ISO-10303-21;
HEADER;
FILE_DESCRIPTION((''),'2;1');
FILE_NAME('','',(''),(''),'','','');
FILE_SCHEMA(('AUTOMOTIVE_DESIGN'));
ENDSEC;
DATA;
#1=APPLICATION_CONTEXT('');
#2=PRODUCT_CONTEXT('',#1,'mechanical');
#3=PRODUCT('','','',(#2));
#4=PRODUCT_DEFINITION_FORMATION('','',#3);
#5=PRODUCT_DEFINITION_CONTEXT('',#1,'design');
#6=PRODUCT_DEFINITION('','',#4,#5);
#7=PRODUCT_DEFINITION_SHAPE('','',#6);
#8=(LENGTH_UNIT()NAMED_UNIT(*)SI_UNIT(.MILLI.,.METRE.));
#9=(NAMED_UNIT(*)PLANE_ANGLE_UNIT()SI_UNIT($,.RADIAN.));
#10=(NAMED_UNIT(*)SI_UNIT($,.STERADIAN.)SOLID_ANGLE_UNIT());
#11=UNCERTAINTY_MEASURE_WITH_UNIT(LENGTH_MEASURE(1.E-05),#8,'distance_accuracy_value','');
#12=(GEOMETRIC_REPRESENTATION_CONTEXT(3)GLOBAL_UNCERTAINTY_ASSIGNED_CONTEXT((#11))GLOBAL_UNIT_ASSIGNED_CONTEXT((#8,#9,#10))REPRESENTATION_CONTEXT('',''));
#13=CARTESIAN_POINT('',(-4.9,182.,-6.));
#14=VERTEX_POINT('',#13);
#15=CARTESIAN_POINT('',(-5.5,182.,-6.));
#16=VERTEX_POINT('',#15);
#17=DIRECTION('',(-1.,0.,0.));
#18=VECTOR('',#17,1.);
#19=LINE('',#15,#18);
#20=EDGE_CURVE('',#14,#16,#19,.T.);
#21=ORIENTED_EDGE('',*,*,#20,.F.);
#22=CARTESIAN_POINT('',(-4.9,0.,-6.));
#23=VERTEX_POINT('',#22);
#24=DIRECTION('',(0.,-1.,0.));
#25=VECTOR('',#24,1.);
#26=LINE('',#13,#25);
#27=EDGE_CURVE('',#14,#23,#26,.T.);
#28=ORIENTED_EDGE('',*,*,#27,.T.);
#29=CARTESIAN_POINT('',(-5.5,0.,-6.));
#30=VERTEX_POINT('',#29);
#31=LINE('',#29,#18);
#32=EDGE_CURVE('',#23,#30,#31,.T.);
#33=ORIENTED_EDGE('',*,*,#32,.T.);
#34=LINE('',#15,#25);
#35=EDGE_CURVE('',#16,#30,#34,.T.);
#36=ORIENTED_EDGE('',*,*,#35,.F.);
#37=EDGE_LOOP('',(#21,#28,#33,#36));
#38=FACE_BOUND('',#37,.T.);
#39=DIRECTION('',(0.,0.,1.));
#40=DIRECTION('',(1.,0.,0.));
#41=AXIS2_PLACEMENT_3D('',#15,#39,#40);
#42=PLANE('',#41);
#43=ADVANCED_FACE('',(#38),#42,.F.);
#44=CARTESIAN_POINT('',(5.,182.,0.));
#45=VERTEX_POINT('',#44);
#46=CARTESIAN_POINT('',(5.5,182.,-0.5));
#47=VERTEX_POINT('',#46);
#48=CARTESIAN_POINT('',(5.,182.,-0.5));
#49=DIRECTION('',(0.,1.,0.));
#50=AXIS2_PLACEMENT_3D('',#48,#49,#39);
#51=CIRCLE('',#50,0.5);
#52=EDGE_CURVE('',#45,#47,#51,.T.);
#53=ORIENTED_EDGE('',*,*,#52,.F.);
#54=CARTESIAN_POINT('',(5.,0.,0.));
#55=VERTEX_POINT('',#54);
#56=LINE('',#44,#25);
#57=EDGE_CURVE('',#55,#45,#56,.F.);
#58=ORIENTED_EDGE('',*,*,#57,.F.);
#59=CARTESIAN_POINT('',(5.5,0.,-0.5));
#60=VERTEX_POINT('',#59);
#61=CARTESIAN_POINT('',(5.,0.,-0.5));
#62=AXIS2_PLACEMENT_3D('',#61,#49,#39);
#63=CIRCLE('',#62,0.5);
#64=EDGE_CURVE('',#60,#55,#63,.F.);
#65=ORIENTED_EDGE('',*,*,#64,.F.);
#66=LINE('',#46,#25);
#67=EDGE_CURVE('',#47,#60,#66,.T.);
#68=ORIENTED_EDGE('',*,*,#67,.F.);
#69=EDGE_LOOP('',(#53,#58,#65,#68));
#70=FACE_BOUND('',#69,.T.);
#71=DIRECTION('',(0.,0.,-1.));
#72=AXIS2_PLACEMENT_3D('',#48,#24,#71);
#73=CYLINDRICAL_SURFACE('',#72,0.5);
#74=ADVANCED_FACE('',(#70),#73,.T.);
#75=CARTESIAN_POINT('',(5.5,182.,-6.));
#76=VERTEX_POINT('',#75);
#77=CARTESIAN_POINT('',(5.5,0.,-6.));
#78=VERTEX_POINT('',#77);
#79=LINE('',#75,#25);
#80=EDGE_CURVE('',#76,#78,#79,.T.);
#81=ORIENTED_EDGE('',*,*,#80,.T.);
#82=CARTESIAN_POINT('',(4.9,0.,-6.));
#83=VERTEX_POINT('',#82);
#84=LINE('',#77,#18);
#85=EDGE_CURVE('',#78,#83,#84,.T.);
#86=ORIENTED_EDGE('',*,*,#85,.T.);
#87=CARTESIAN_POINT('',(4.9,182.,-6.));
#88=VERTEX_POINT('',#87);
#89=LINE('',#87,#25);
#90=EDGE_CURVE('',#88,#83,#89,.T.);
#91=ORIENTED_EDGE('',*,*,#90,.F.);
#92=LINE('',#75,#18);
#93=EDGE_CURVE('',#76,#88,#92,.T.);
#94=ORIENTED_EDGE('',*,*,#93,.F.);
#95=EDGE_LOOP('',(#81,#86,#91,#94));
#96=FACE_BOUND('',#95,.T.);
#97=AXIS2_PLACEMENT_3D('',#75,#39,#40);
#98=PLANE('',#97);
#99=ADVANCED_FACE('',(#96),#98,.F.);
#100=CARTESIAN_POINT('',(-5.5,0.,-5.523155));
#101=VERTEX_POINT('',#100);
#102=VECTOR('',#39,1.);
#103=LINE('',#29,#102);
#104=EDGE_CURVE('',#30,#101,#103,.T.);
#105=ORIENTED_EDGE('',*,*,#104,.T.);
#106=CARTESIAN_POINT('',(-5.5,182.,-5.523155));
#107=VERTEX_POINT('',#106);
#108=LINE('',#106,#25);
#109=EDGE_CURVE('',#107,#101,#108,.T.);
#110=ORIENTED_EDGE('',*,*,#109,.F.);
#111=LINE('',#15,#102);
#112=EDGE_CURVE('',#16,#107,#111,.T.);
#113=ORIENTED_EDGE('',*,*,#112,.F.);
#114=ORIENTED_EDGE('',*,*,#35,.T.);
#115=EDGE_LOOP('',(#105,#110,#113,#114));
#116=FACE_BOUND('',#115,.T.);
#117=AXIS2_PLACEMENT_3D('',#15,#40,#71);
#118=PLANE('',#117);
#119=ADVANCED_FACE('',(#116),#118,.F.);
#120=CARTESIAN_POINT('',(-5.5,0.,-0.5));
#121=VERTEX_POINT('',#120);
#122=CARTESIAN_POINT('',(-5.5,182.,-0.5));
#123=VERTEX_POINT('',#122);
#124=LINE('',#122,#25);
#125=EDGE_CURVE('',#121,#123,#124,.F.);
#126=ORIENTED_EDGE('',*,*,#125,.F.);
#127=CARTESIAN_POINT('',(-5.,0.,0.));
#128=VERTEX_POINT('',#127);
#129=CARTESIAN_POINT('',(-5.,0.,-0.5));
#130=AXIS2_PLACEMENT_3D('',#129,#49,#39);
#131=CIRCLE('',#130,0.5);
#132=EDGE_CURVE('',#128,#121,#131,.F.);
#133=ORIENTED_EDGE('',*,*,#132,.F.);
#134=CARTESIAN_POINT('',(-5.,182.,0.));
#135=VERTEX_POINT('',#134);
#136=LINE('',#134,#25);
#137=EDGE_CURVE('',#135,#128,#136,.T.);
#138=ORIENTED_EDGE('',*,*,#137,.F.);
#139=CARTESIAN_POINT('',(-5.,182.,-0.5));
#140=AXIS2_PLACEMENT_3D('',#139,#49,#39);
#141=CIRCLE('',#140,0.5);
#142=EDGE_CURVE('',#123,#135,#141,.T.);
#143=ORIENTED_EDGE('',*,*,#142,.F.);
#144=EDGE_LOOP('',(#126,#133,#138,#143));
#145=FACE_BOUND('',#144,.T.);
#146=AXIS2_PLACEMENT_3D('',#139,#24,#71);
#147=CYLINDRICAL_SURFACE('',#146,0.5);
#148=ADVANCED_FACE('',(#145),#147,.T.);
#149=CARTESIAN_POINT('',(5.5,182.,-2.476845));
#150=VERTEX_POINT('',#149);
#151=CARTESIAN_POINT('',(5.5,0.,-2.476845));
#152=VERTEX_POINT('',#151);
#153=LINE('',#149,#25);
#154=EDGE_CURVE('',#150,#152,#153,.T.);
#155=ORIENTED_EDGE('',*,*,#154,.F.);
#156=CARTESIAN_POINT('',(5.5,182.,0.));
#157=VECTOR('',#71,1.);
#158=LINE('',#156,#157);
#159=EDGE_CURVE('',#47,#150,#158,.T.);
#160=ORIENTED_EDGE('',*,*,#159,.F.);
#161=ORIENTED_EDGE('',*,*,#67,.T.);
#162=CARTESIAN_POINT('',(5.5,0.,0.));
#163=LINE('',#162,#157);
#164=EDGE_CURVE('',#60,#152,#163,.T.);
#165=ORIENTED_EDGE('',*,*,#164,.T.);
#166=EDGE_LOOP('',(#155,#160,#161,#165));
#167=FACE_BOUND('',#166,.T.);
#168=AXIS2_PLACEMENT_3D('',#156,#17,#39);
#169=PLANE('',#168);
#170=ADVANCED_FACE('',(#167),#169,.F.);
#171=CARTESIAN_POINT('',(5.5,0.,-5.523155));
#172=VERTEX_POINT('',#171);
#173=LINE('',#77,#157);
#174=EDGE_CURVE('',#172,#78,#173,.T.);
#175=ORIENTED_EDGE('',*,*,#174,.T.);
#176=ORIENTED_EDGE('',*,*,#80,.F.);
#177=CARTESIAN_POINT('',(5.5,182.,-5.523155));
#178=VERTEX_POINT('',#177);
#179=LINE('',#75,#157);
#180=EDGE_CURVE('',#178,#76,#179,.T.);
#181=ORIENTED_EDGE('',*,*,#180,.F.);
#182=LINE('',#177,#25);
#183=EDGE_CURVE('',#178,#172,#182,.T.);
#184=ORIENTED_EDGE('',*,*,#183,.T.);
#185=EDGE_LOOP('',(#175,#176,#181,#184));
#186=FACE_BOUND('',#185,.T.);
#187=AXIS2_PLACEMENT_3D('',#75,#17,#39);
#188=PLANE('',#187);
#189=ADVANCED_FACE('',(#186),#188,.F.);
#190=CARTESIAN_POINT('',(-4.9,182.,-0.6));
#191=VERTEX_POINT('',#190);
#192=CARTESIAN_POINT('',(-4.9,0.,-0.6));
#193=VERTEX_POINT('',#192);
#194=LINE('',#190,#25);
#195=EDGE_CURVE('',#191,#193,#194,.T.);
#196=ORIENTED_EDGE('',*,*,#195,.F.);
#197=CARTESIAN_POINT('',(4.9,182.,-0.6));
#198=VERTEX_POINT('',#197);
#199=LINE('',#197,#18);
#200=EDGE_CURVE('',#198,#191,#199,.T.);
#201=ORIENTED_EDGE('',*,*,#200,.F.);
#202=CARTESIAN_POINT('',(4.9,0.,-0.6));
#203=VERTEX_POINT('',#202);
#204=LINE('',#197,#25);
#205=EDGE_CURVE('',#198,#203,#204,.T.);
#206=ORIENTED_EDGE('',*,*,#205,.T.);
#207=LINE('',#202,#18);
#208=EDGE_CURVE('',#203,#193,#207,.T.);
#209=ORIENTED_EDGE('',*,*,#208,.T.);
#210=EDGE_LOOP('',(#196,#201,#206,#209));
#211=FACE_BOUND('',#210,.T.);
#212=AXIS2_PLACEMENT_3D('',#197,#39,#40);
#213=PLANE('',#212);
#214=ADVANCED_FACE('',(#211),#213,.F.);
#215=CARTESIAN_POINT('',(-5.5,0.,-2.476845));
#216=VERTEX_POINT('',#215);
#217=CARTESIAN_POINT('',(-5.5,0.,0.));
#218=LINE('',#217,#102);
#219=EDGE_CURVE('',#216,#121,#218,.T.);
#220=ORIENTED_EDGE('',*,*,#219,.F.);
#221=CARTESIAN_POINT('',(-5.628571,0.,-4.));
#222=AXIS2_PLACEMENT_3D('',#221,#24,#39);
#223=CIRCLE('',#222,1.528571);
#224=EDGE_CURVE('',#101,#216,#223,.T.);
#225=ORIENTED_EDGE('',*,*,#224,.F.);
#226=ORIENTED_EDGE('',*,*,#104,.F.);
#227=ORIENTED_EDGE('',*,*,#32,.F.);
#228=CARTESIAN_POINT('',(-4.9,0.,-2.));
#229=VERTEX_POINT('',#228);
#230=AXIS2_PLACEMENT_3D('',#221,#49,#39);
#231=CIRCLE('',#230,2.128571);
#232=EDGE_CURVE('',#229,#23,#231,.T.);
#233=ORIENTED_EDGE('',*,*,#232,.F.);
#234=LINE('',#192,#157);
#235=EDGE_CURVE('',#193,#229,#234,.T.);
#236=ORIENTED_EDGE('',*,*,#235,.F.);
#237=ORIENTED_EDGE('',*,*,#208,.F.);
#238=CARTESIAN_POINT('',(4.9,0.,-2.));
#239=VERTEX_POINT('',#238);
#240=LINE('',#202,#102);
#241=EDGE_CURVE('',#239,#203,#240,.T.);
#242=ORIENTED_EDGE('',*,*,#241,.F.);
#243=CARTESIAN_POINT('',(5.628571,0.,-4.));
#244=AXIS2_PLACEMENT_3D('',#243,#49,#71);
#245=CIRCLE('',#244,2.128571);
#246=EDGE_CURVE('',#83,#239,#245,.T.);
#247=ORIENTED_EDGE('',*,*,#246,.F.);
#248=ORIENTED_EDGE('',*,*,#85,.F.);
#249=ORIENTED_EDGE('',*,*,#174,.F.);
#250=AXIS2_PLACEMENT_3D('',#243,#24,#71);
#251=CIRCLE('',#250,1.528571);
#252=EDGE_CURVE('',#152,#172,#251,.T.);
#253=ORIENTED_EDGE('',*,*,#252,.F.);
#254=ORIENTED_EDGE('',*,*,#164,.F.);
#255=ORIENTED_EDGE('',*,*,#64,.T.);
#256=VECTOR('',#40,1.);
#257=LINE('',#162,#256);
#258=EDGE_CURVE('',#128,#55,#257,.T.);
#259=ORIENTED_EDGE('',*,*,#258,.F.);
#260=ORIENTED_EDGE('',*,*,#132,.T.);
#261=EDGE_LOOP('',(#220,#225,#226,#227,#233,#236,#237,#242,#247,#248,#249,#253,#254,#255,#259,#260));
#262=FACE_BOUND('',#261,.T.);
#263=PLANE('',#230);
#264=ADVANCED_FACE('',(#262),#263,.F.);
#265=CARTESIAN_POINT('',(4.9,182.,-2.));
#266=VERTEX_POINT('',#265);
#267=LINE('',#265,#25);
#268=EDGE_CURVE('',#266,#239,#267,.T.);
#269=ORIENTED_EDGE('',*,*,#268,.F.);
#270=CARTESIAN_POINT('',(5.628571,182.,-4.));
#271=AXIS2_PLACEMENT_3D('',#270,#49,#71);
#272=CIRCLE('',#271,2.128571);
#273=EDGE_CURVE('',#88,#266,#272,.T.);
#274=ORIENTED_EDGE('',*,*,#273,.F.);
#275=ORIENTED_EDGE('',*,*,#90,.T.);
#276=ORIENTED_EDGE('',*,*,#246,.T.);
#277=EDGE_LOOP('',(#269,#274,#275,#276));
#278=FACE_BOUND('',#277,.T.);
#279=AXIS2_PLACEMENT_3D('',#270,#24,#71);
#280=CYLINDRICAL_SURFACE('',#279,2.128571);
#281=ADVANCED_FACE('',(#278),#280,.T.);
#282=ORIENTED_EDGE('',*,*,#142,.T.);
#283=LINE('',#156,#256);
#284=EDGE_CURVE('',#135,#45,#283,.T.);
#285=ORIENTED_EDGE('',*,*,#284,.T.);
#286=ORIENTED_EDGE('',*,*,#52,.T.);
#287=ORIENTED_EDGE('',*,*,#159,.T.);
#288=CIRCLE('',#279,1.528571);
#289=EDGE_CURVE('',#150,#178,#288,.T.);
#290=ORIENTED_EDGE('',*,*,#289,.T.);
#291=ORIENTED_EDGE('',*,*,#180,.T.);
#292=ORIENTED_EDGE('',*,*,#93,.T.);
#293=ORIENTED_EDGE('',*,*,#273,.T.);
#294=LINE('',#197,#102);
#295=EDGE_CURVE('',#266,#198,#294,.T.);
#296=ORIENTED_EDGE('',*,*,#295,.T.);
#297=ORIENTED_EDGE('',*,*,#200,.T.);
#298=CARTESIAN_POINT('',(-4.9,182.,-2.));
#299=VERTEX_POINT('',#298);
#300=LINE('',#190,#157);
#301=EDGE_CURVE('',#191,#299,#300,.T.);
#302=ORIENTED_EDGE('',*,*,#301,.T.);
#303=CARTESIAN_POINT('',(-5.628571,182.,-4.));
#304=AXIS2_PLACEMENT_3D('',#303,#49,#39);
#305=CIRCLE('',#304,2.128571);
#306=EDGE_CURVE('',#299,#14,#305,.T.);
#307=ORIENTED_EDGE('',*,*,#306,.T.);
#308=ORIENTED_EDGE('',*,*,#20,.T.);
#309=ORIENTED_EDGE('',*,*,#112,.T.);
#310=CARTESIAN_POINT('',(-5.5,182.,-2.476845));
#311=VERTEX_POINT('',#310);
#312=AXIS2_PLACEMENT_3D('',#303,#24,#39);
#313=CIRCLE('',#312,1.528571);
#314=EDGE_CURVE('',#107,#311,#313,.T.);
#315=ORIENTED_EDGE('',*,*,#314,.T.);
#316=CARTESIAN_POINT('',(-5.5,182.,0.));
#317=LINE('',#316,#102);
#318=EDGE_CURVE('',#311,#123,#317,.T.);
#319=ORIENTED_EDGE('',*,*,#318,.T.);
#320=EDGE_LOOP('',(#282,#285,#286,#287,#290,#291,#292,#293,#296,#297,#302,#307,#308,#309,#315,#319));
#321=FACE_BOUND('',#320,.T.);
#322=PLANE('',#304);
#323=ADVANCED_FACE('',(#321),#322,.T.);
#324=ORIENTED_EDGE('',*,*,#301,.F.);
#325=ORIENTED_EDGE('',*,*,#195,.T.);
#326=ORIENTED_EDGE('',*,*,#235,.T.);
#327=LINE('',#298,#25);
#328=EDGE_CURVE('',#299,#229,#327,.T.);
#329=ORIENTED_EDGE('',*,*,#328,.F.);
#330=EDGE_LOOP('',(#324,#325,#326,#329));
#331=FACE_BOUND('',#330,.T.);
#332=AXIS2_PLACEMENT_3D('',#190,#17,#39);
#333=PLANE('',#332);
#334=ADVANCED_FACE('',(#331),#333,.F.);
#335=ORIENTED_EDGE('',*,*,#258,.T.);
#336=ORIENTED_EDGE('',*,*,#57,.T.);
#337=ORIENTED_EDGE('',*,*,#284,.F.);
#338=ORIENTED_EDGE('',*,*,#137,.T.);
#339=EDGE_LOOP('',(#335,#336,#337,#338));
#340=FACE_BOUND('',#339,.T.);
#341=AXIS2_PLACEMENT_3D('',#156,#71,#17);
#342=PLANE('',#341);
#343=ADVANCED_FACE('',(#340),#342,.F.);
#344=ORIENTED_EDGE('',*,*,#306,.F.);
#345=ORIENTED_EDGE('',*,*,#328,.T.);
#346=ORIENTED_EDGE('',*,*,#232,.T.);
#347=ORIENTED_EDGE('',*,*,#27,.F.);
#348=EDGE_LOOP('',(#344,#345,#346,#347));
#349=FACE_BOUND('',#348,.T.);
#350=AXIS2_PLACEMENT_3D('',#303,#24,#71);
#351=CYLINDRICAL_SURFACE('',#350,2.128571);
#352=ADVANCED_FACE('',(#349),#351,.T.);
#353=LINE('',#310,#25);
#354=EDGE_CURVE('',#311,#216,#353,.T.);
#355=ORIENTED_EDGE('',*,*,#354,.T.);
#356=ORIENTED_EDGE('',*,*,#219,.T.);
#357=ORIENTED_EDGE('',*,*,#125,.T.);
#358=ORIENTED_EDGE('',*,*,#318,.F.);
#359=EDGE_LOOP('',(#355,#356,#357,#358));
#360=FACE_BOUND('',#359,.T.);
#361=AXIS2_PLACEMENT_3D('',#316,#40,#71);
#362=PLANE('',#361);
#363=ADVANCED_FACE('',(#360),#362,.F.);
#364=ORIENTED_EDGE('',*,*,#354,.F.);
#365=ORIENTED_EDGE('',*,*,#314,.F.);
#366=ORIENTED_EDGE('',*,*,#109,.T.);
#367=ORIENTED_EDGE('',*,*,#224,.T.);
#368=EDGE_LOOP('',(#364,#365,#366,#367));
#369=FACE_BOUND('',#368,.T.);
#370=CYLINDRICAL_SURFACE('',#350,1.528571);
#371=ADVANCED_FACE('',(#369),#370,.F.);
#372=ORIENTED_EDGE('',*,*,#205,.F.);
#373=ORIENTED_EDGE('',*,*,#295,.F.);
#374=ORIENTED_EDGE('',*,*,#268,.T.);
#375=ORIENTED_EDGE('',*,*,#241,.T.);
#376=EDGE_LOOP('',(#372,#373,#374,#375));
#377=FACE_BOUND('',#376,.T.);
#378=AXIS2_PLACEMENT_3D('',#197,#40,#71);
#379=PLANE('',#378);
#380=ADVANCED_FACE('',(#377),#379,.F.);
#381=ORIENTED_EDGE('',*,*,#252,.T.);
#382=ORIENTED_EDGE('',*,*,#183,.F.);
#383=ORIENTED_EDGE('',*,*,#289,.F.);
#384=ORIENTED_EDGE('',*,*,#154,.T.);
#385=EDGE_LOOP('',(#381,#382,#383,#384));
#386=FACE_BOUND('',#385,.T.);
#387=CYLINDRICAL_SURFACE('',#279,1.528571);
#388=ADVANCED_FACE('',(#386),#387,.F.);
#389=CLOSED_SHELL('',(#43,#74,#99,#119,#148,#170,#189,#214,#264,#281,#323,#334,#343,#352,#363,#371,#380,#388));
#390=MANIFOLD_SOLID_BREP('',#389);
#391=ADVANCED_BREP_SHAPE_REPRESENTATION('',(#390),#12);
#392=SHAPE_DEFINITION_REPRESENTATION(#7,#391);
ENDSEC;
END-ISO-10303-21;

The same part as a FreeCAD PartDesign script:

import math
import FreeCAD as App
import Part
import Sketcher
Q = App.Units.Quantity


def edges_at(feature, points):
    """Names of the edges that pass closest to the given points."""
    edges = feature.Shape.Edges
    near = lambda p: min(range(len(edges)), key=lambda i: edges[i].distToShape(Part.Vertex(*p))[0])
    return sorted({f"Edge{near(p) + 1}" for p in points})

doc = App.newDocument("Part")
params = doc.addObject("Spreadsheet::Sheet", "Params")
for row, (alias, value) in enumerate([
    ("sketch1_width", "11 mm"),
    ("sketch1_width2", "0.6 mm"),
    ("sketch1_height", "1.4 mm"),
    ("pad1_length", "182 mm"),
    ("fillet_radius", "0.5 mm"),
], start=1):
    params.set(f"A{row}", alias)
    params.set(f"B{row}", "=" + value)
    params.setAlias(f"B{row}", alias)

body = doc.addObject("PartDesign::Body", "Body")

# Sketch on XZ plane
sketch1 = body.newObject("Sketcher::SketchObject", "Sketch")
sketch1.AttachmentSupport = (doc.getObject("XZ_Plane"), [""])
sketch1.MapMode = "FlatFace"
sketch1.addGeometry([
    Part.LineSegment(App.Vector(-5.5, 0, 0), App.Vector(5.5, 0, 0)),  # 0
    Part.LineSegment(App.Vector(5.5, 0, 0), App.Vector(5.5, -2.48, 0)),  # 1
    Part.ArcOfCircle(Part.Circle(App.Vector(5.63, -4, 0), App.Vector(0, 0, 1), 1.53), math.radians(95), math.radians(265)),  # 2
    Part.LineSegment(App.Vector(5.5, -5.52, 0), App.Vector(5.5, -6, 0)),  # 3
    Part.LineSegment(App.Vector(5.5, -6, 0), App.Vector(4.9, -6, 0)),  # 4
    Part.ArcOfCircle(Part.Circle(App.Vector(5.63, -4, 0), App.Vector(0, 0, 1), 2.13), math.radians(110), math.radians(250)),  # 5
    Part.LineSegment(App.Vector(4.9, -2, 0), App.Vector(4.9, -0.6, 0)),  # 6
    Part.LineSegment(App.Vector(4.9, -0.6, 0), App.Vector(-4.9, -0.6, 0)),  # 7
    Part.LineSegment(App.Vector(-4.9, -0.6, 0), App.Vector(-4.9, -2, 0)),  # 8
    Part.ArcOfCircle(Part.Circle(App.Vector(-5.63, -4, 0), App.Vector(0, 0, 1), 2.13), math.radians(-70), math.radians(70)),  # 9
    Part.LineSegment(App.Vector(-4.9, -6, 0), App.Vector(-5.5, -6, 0)),  # 10
    Part.LineSegment(App.Vector(-5.5, -6, 0), App.Vector(-5.5, -5.52, 0)),  # 11
    Part.ArcOfCircle(Part.Circle(App.Vector(-5.63, -4, 0), App.Vector(0, 0, 1), 1.53), math.radians(-85), math.radians(85)),  # 12
    Part.LineSegment(App.Vector(-5.5, -2.48, 0), App.Vector(-5.5, 0, 0)),  # 13
], False)
sketch1.addConstraint([
    Sketcher.Constraint("Coincident", 0, 2, 1, 1),
    Sketcher.Constraint("Coincident", 1, 2, 2, 1),
    Sketcher.Constraint("Coincident", 2, 2, 3, 1),
    Sketcher.Constraint("Coincident", 3, 2, 4, 1),
    Sketcher.Constraint("Coincident", 4, 2, 5, 2),
    Sketcher.Constraint("Coincident", 5, 1, 6, 1),
    Sketcher.Constraint("Coincident", 6, 2, 7, 1),
    Sketcher.Constraint("Coincident", 7, 2, 8, 1),
    Sketcher.Constraint("Coincident", 8, 2, 9, 2),
    Sketcher.Constraint("Coincident", 9, 1, 10, 1),
    Sketcher.Constraint("Coincident", 10, 2, 11, 1),
    Sketcher.Constraint("Coincident", 11, 2, 12, 1),
    Sketcher.Constraint("Coincident", 12, 2, 13, 1),
    Sketcher.Constraint("Coincident", 13, 2, 0, 1),
    Sketcher.Constraint("Horizontal", 0),
    Sketcher.Constraint("Vertical", 1),
    Sketcher.Constraint("Vertical", 3),
    Sketcher.Constraint("Horizontal", 4),
    Sketcher.Constraint("Vertical", 6),
    Sketcher.Constraint("Horizontal", 7),
    Sketcher.Constraint("Vertical", 8),
    Sketcher.Constraint("Horizontal", 10),
    Sketcher.Constraint("Vertical", 11),
    Sketcher.Constraint("Vertical", 13),
    Sketcher.Constraint("Coincident", 5, 3, 2, 3),
    Sketcher.Constraint("Coincident", 12, 3, 9, 3),
    Sketcher.Constraint("Equal", 5, 9),
    Sketcher.Constraint("Equal", 2, 12),
    Sketcher.Constraint("Symmetric", 0, 2, 13, 2, -1, 1),
    Sketcher.Constraint("Symmetric", 2, 3, 9, 3, -2),
    Sketcher.Constraint("Symmetric", 3, 2, 10, 2, -2),
    Sketcher.Constraint("Horizontal", 5, 1, 8, 2),
    Sketcher.Constraint("Vertical", 1, 2, 2, 2),
    Sketcher.Constraint("Vertical", 4, 2, 5, 1),
    Sketcher.Constraint("DistanceX", 0, 1, 0, 2, Q("11 mm")),
    Sketcher.Constraint("DistanceX", 4, 2, 4, 1, Q("0.6 mm")),
    Sketcher.Constraint("DistanceY", 6, 1, 6, 2, Q("1.4 mm")),
    Sketcher.Constraint("DistanceY", 2, 3, -1, 1, Q("4 mm")),
    Sketcher.Constraint("DistanceY", 3, 2, -1, 1, Q("6 mm")),
    Sketcher.Constraint("Radius", 2, Q("1.528571 mm")),
    Sketcher.Constraint("Radius", 5, Q("2.128571 mm")),
])
sketch1.setExpression("Constraints[34]", "Params.sketch1_width")
sketch1.setExpression("Constraints[35]", "Params.sketch1_width2")
sketch1.setExpression("Constraints[36]", "Params.sketch1_height")
pad1 = body.newObject("PartDesign::Pad", "Pad")
pad1.Profile = sketch1
pad1.setExpression("Length", "Params.pad1_length")
pad1.Reversed = True
doc.recompute()

fillet = body.newObject("PartDesign::Fillet", "Fillet")
fillet.Base = (pad1, edges_at(pad1, [(5.5, 91, 0), (-5.5, 91, 0)]))
fillet.setExpression("Radius", "Params.fillet_radius")

doc.recompute()
